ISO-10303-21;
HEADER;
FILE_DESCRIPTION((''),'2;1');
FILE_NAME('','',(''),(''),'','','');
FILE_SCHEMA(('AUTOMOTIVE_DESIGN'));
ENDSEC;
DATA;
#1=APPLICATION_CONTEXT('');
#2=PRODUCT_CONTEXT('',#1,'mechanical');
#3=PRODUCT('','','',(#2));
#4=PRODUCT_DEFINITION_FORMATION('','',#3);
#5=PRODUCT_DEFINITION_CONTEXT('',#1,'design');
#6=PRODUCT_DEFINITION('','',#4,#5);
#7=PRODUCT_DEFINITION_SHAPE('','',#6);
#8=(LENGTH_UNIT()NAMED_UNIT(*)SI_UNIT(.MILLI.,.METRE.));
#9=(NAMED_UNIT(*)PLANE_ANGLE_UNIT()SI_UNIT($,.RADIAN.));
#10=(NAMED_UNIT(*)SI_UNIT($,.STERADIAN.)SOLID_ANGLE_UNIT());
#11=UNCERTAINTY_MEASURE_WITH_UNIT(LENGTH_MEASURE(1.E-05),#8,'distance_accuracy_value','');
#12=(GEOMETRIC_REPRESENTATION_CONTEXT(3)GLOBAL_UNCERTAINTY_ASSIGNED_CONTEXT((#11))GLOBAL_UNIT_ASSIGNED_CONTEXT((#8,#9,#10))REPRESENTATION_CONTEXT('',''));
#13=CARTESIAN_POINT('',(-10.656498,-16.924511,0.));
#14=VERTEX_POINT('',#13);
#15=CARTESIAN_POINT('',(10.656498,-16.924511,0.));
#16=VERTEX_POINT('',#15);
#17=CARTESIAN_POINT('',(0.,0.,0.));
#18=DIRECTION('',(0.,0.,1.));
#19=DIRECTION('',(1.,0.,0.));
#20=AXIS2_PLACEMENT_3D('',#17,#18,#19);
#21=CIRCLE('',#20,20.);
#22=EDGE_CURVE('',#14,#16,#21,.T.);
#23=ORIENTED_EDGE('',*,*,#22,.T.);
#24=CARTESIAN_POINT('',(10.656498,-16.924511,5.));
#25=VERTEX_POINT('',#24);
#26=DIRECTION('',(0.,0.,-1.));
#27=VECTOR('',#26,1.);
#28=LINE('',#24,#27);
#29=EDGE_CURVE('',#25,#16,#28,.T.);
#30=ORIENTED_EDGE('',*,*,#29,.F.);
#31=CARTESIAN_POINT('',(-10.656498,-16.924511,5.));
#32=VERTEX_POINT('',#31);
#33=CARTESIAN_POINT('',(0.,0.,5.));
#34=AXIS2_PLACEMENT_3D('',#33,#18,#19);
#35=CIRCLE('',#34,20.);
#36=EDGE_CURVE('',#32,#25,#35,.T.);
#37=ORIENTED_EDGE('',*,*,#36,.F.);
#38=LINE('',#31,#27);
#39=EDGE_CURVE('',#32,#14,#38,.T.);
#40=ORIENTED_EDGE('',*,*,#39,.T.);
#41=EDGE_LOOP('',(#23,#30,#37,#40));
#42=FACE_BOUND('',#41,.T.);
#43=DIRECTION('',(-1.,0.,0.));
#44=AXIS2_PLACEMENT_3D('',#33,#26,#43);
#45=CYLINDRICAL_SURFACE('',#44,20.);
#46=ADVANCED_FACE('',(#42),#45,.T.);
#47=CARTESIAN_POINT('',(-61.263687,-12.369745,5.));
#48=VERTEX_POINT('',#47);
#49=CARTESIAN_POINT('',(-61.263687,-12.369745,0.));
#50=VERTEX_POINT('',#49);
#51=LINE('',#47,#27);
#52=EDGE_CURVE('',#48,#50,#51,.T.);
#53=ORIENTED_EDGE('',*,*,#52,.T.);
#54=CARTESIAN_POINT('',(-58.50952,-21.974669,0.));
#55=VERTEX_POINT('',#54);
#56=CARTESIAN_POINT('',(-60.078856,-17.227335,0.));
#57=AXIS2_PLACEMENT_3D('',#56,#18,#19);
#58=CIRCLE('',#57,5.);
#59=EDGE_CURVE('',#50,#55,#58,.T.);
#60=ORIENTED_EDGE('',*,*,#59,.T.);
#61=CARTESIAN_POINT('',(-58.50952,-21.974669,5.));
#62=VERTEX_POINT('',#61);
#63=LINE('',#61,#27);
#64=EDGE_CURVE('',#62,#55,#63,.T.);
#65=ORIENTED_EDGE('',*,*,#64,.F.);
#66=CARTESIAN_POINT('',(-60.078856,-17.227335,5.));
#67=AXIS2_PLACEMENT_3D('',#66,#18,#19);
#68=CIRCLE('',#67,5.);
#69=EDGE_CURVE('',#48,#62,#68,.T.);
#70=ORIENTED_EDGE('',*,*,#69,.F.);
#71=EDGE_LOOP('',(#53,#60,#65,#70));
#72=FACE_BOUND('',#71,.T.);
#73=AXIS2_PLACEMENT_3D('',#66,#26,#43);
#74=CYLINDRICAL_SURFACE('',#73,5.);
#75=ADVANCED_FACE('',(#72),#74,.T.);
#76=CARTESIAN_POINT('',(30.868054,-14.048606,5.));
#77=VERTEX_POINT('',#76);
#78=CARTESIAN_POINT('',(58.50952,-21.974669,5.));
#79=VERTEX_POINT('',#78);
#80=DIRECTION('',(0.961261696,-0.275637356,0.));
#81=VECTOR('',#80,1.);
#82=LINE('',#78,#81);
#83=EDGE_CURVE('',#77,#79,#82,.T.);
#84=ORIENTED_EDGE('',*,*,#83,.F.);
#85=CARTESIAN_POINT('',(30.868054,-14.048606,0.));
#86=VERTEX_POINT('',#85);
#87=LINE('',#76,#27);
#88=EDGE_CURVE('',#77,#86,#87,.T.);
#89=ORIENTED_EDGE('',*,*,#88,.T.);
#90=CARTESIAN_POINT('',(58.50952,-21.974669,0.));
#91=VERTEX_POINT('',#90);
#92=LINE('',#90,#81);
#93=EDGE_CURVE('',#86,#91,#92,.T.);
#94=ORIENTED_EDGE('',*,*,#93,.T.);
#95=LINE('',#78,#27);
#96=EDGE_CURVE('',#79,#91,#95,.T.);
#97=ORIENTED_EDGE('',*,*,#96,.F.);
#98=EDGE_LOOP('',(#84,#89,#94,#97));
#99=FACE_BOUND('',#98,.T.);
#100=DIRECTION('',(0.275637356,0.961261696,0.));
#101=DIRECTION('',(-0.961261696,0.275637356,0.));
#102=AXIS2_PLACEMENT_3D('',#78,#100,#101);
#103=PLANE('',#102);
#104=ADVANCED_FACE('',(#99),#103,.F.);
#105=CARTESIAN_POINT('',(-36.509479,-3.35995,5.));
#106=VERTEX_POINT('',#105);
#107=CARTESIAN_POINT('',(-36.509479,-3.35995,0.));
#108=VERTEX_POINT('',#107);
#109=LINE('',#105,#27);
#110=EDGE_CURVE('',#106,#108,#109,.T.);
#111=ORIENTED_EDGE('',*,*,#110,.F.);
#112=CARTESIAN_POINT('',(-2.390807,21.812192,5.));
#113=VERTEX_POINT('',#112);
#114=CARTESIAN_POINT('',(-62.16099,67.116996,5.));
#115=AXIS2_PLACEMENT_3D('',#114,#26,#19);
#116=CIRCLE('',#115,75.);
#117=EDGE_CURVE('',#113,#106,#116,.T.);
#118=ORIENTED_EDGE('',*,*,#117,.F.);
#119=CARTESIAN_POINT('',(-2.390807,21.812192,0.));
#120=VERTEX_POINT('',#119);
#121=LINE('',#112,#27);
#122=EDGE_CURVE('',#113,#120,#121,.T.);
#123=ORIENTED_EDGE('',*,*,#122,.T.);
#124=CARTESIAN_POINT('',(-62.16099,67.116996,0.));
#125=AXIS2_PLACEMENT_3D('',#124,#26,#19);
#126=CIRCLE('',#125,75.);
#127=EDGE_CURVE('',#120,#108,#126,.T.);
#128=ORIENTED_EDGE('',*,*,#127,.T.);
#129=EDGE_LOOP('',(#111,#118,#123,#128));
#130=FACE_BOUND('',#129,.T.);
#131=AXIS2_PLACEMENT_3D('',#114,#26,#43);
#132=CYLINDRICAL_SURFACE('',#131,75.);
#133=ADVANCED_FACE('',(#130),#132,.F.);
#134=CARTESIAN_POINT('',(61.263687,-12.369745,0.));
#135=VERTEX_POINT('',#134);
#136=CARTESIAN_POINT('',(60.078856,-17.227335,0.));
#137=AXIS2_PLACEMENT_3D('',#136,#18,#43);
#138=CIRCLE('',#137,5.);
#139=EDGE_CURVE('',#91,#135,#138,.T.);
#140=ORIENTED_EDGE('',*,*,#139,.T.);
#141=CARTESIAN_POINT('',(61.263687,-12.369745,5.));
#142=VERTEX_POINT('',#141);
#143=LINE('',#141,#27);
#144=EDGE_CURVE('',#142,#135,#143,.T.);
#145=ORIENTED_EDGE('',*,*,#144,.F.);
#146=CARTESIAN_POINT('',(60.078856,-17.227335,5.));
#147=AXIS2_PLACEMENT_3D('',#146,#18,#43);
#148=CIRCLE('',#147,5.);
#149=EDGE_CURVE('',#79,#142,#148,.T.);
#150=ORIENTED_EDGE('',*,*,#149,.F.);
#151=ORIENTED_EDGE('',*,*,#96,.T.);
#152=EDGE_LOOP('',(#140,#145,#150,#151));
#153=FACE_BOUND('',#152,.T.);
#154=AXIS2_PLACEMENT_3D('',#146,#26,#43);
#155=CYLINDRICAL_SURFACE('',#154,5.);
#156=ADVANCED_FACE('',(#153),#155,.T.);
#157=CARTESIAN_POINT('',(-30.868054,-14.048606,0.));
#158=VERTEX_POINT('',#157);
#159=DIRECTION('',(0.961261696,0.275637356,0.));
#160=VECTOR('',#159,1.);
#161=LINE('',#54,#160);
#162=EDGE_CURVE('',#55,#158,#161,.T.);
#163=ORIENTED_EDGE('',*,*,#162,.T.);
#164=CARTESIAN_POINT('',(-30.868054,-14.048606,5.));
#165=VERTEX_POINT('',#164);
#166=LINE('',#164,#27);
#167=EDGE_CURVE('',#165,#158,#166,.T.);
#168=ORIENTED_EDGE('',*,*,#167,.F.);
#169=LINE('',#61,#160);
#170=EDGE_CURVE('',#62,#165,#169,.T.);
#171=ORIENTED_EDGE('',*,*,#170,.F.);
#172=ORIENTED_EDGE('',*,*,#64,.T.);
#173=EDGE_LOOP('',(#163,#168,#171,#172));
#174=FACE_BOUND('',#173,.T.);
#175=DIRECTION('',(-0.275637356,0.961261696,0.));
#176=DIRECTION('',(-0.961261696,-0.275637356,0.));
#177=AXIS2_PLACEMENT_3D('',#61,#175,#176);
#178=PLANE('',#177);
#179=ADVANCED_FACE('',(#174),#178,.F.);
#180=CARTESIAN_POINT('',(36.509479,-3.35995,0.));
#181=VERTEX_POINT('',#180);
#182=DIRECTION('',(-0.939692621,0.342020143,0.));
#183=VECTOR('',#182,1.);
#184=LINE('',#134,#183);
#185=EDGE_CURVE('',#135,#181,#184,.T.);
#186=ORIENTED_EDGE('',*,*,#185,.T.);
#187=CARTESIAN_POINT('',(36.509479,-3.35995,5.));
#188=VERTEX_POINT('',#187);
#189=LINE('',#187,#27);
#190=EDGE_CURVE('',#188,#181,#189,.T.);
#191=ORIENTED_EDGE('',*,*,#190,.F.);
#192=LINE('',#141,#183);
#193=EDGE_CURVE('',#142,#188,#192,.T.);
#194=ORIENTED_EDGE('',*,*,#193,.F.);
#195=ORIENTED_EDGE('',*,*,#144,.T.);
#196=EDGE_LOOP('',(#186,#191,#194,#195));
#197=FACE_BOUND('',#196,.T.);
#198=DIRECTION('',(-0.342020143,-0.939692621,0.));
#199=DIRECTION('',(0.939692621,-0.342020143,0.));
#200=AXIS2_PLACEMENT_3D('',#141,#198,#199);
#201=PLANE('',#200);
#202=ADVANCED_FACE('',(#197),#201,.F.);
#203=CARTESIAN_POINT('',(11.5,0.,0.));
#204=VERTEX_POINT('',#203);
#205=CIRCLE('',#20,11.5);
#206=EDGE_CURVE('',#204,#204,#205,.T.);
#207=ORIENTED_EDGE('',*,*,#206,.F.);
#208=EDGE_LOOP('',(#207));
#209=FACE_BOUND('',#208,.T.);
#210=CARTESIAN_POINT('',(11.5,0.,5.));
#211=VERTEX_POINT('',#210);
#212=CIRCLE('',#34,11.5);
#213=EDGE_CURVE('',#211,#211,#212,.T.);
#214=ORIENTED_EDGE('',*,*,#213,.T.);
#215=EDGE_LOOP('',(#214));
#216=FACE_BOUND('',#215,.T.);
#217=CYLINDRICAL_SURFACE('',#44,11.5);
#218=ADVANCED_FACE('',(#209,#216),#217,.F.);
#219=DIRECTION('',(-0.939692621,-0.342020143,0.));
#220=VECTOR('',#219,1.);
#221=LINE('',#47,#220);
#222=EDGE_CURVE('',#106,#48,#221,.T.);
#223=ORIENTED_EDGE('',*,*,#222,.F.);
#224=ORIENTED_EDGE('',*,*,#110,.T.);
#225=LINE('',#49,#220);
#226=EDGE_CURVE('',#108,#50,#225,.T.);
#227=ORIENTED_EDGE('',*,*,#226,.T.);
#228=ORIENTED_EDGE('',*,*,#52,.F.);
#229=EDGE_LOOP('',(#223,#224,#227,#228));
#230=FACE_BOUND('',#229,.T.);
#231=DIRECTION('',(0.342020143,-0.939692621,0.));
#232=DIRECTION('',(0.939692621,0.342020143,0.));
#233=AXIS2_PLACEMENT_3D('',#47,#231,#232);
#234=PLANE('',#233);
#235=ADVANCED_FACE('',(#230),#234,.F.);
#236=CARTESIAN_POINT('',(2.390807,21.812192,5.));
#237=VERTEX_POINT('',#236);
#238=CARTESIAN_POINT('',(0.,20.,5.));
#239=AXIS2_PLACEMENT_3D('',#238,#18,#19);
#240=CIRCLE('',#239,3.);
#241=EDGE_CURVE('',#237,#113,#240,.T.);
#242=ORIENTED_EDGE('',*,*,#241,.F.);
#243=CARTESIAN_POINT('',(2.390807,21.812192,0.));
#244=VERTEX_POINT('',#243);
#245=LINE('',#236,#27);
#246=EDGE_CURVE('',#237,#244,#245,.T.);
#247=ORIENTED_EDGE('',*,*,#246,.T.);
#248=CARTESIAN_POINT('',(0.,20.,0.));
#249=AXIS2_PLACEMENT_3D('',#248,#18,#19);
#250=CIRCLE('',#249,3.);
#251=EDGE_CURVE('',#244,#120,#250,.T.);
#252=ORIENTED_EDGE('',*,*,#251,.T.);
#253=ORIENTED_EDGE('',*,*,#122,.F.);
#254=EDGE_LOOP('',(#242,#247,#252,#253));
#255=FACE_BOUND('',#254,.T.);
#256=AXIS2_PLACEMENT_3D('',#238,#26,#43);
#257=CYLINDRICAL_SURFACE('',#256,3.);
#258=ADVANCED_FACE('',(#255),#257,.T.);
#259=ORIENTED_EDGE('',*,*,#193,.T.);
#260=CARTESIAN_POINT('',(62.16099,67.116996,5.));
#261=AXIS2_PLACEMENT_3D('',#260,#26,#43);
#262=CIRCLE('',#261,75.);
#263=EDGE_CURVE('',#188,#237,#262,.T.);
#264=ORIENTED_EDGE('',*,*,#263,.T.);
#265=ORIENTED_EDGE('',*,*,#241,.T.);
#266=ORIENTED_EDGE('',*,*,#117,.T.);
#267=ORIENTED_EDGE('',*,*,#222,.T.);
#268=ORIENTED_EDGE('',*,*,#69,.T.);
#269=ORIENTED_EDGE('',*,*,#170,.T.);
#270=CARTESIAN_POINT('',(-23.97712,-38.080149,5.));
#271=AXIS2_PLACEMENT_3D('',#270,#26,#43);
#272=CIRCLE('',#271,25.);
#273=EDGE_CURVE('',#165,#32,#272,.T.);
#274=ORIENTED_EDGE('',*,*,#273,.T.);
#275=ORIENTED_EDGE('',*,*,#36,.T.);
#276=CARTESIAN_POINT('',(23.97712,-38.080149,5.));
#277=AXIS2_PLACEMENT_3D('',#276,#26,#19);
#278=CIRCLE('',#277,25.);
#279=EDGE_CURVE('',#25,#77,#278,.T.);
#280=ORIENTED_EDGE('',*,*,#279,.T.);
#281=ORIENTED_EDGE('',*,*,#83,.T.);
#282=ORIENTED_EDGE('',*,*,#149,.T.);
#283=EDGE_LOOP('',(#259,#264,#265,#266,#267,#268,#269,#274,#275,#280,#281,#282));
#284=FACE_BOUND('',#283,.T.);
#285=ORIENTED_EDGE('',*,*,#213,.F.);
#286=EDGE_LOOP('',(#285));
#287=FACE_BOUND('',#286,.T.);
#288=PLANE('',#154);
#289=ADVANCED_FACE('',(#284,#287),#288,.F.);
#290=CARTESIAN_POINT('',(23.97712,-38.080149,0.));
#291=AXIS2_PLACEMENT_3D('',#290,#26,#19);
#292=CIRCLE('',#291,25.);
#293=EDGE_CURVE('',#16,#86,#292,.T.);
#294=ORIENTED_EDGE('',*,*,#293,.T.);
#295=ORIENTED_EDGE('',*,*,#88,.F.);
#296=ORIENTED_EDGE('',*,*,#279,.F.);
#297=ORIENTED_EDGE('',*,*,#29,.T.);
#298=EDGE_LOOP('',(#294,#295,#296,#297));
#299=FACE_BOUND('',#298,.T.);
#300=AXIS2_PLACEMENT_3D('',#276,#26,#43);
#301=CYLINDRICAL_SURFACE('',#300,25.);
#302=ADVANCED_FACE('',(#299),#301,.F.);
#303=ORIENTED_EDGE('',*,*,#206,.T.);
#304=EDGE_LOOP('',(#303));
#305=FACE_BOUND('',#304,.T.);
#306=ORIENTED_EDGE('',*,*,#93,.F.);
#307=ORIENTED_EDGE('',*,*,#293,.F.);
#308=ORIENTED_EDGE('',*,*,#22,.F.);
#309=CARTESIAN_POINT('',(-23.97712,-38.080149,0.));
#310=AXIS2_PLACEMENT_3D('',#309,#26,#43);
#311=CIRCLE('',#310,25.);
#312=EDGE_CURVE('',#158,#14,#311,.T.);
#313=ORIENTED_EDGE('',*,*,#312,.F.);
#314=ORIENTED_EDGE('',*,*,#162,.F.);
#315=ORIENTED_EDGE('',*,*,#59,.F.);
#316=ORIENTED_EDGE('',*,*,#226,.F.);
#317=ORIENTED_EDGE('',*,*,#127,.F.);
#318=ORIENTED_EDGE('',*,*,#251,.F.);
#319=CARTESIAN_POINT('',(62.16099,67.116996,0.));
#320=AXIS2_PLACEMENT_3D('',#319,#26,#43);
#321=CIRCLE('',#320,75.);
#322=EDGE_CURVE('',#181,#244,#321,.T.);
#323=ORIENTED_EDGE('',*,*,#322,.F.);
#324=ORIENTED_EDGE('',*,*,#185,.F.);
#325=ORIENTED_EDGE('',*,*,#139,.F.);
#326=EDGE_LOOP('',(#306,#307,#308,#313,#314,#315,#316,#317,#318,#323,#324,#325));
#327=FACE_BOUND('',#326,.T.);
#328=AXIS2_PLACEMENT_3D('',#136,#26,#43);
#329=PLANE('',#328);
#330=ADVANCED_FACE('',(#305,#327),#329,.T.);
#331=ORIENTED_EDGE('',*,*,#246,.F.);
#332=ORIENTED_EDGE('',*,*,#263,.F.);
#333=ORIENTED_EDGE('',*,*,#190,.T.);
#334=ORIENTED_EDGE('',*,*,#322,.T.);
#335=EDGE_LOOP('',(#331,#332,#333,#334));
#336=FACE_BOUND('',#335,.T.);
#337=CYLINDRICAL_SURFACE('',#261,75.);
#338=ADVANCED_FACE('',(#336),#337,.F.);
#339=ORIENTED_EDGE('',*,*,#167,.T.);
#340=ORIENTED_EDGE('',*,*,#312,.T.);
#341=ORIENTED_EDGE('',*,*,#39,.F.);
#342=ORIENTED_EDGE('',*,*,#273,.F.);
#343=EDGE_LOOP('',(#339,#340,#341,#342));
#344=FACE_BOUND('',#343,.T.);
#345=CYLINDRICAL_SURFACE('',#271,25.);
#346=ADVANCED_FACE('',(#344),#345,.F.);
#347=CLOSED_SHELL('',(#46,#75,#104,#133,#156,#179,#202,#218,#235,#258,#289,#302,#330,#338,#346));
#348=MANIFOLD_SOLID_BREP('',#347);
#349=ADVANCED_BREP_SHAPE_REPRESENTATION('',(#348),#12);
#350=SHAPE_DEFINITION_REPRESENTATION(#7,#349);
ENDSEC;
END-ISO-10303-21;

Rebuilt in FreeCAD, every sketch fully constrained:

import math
import FreeCAD as App
import Part
import Sketcher
Q = App.Units.Quantity

doc = App.newDocument("Part")
body = doc.addObject("PartDesign::Body", "Body")

sketch1 = body.newObject("Sketcher::SketchObject", "Sketch")
sketch1.AttachmentSupport = (doc.getObject("XY_Plane"), [""])
sketch1.MapMode = "FlatFace"
sketch1.addGeometry(Part.LineSegment(App.Vector(30.9, -14, 0), App.Vector(58.5, -22, 0)), False)
sketch1.addGeometry(Part.ArcOfCircle(Part.Circle(App.Vector(60.1, -17.2, 0), App.Vector(0, 0, 1), 5), math.radians(-108), math.radians(76)), False)
sketch1.addGeometry(Part.LineSegment(App.Vector(61.3, -12.4, 0), App.Vector(36.5, -3.4, 0)), False)
sketch1.addGeometry(Part.ArcOfCircle(Part.Circle(App.Vector(62.2, 67.1, 0), App.Vector(0, 0, 1), 75), math.radians(-143), math.radians(-110)), False)
sketch1.addGeometry(Part.ArcOfCircle(Part.Circle(App.Vector(0, 20, 0), App.Vector(0, 0, 1), 3), math.radians(37), math.radians(143)), False)
sketch1.addGeometry(Part.ArcOfCircle(Part.Circle(App.Vector(-62.2, 67.1, 0), App.Vector(0, 0, 1), 75), math.radians(-70), math.radians(-37)), False)
sketch1.addGeometry(Part.LineSegment(App.Vector(-36.5, -3.4, 0), App.Vector(-61.3, -12.4, 0)), False)
sketch1.addGeometry(Part.ArcOfCircle(Part.Circle(App.Vector(-60.1, -17.2, 0), App.Vector(0, 0, 1), 5), math.radians(104), math.radians(288)), False)
sketch1.addGeometry(Part.LineSegment(App.Vector(-58.5, -22, 0), App.Vector(-30.9, -14, 0)), False)
sketch1.addGeometry(Part.ArcOfCircle(Part.Circle(App.Vector(-24, -38.1, 0), App.Vector(0, 0, 1), 25), math.radians(58), math.radians(106)), False)
sketch1.addGeometry(Part.ArcOfCircle(Part.Circle(App.Vector(0, 0, 0), App.Vector(0, 0, 1), 20), math.radians(-122), math.radians(-58)), False)
sketch1.addGeometry(Part.ArcOfCircle(Part.Circle(App.Vector(24, -38.1, 0), App.Vector(0, 0, 1), 25), math.radians(74), math.radians(122)), False)
sketch1.addGeometry(Part.Circle(App.Vector(0, 0, 0), App.Vector(0, 0, 1), 11.5), False)
sketch1.addConstraint(Sketcher.Constraint("Coincident", 0, 2, 1, 1))
sketch1.addConstraint(Sketcher.Constraint("Coincident", 1, 2, 2, 1))
sketch1.addConstraint(Sketcher.Constraint("Tangent", 2, 2, 3, 2))
sketch1.addConstraint(Sketcher.Constraint("Tangent", 3, 1, 4, 1))
sketch1.addConstraint(Sketcher.Constraint("Tangent", 4, 2, 5, 2))
sketch1.addConstraint(Sketcher.Constraint("Tangent", 5, 1, 6, 1))
sketch1.addConstraint(Sketcher.Constraint("Coincident", 6, 2, 7, 1))
sketch1.addConstraint(Sketcher.Constraint("Coincident", 7, 2, 8, 1))
sketch1.addConstraint(Sketcher.Constraint("Tangent", 8, 2, 9, 2))
sketch1.addConstraint(Sketcher.Constraint("Tangent", 9, 1, 10, 1))
sketch1.addConstraint(Sketcher.Constraint("Tangent", 10, 2, 11, 2))
sketch1.addConstraint(Sketcher.Constraint("Tangent", 11, 1, 0, 1))
sketch1.addConstraint(Sketcher.Constraint("Coincident", 10, 3, -1, 1))
sketch1.addConstraint(Sketcher.Constraint("Coincident", 12, 3, -1, 1))
sketch1.addConstraint(Sketcher.Constraint("Equal", 3, 5))
sketch1.addConstraint(Sketcher.Constraint("Equal", 1, 7))
sketch1.addConstraint(Sketcher.Constraint("Equal", 9, 11))
sketch1.addConstraint(Sketcher.Constraint("Symmetric", 3, 3, 5, 3, -2))
sketch1.addConstraint(Sketcher.Constraint("Symmetric", 1, 3, 7, 3, -2))
sketch1.addConstraint(Sketcher.Constraint("Symmetric", 8, 2, 11, 1, -2))
sketch1.addConstraint(Sketcher.Constraint("Horizontal", 2, 2, 5, 1))
sketch1.addConstraint(Sketcher.Constraint("Diameter", 12, Q("23 mm")))
sketch1.addConstraint(Sketcher.Constraint("Radius", 1, Q("5 mm")))
sketch1.addConstraint(Sketcher.Constraint("Radius", 3, Q("75 mm")))
sketch1.addConstraint(Sketcher.Constraint("Radius", 4, Q("3 mm")))
sketch1.addConstraint(Sketcher.Constraint("Radius", 9, Q("25 mm")))
sketch1.addConstraint(Sketcher.Constraint("Radius", 10, Q("20 mm")))
sketch1.addConstraint(Sketcher.Constraint("Angle", 0, Q("-16 deg")))
sketch1.addConstraint(Sketcher.Constraint("Angle", 2, Q("160 deg")))
sketch1.addConstraint(Sketcher.Constraint("DistanceY", -1, 1, 4, 3, Q("20 mm")))
sketch1.addConstraint(Sketcher.Constraint("Distance", 0, Q("28.755402 mm")))
sketch1.addConstraint(Sketcher.Constraint("DistanceY", 9, 3, 5, 1, Q("34.720198 mm")))
sketch1.addConstraint(Sketcher.Constraint("Distance", 2, Q("26.342878 mm")))
sketch1.addConstraint(Sketcher.Constraint("DistanceX", -1, 1, 3, 3, Q("62.16099 mm")))
pad1 = body.newObject("PartDesign::Pad", "Pad")
pad1.Profile = sketch1
pad1.Length = 5

doc.recompute()
